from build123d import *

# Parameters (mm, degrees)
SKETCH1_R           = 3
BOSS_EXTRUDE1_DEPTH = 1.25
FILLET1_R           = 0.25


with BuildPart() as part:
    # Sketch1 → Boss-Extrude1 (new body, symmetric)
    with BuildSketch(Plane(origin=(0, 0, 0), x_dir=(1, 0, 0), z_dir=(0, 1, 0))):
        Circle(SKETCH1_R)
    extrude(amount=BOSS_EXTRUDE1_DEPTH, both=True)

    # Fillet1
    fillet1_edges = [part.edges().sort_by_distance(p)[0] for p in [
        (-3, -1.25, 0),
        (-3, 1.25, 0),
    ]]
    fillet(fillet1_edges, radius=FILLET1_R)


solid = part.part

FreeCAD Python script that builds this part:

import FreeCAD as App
import Part
import Sketcher
from FreeCAD import Vector


def edges_at(feature, points):
    """Names of the edges that pass closest to the given points."""
    edges = feature.Shape.Edges
    near = lambda p: min(range(len(edges)), key=lambda i: edges[i].distToShape(Part.Vertex(*p))[0])
    return sorted({f"Edge{near(p) + 1}" for p in points})

doc = App.newDocument("Part")
body = doc.addObject("PartDesign::Body", "Body")

# Sketch on XZ plane
sketch1 = body.newObject("Sketcher::SketchObject", "Sketch")
sketch1.AttachmentSupport = (doc.getObject("XZ_Plane"), [""])
sketch1.MapMode = "FlatFace"
sketch1.addGeometry(Part.Circle(Vector(0, 0, 0), Vector(0, 0, 1), 3), False)
sketch1.addConstraint([
    Sketcher.Constraint("Coincident", 0, 3, -1, 1),
    Sketcher.Constraint("Diameter", 0, 6.0),
])
pad1 = body.newObject("PartDesign::Pad", "Pad")
pad1.Profile = sketch1
pad1.Length = 2.5
pad1.Midplane = True
doc.recompute()

fillet = body.newObject("PartDesign::Fillet", "Fillet")
fillet.Base = (pad1, edges_at(pad1, [(-3, -1.25, 0), (-3, 1.25, 0)]))
fillet.Radius = 0.25

doc.recompute()
